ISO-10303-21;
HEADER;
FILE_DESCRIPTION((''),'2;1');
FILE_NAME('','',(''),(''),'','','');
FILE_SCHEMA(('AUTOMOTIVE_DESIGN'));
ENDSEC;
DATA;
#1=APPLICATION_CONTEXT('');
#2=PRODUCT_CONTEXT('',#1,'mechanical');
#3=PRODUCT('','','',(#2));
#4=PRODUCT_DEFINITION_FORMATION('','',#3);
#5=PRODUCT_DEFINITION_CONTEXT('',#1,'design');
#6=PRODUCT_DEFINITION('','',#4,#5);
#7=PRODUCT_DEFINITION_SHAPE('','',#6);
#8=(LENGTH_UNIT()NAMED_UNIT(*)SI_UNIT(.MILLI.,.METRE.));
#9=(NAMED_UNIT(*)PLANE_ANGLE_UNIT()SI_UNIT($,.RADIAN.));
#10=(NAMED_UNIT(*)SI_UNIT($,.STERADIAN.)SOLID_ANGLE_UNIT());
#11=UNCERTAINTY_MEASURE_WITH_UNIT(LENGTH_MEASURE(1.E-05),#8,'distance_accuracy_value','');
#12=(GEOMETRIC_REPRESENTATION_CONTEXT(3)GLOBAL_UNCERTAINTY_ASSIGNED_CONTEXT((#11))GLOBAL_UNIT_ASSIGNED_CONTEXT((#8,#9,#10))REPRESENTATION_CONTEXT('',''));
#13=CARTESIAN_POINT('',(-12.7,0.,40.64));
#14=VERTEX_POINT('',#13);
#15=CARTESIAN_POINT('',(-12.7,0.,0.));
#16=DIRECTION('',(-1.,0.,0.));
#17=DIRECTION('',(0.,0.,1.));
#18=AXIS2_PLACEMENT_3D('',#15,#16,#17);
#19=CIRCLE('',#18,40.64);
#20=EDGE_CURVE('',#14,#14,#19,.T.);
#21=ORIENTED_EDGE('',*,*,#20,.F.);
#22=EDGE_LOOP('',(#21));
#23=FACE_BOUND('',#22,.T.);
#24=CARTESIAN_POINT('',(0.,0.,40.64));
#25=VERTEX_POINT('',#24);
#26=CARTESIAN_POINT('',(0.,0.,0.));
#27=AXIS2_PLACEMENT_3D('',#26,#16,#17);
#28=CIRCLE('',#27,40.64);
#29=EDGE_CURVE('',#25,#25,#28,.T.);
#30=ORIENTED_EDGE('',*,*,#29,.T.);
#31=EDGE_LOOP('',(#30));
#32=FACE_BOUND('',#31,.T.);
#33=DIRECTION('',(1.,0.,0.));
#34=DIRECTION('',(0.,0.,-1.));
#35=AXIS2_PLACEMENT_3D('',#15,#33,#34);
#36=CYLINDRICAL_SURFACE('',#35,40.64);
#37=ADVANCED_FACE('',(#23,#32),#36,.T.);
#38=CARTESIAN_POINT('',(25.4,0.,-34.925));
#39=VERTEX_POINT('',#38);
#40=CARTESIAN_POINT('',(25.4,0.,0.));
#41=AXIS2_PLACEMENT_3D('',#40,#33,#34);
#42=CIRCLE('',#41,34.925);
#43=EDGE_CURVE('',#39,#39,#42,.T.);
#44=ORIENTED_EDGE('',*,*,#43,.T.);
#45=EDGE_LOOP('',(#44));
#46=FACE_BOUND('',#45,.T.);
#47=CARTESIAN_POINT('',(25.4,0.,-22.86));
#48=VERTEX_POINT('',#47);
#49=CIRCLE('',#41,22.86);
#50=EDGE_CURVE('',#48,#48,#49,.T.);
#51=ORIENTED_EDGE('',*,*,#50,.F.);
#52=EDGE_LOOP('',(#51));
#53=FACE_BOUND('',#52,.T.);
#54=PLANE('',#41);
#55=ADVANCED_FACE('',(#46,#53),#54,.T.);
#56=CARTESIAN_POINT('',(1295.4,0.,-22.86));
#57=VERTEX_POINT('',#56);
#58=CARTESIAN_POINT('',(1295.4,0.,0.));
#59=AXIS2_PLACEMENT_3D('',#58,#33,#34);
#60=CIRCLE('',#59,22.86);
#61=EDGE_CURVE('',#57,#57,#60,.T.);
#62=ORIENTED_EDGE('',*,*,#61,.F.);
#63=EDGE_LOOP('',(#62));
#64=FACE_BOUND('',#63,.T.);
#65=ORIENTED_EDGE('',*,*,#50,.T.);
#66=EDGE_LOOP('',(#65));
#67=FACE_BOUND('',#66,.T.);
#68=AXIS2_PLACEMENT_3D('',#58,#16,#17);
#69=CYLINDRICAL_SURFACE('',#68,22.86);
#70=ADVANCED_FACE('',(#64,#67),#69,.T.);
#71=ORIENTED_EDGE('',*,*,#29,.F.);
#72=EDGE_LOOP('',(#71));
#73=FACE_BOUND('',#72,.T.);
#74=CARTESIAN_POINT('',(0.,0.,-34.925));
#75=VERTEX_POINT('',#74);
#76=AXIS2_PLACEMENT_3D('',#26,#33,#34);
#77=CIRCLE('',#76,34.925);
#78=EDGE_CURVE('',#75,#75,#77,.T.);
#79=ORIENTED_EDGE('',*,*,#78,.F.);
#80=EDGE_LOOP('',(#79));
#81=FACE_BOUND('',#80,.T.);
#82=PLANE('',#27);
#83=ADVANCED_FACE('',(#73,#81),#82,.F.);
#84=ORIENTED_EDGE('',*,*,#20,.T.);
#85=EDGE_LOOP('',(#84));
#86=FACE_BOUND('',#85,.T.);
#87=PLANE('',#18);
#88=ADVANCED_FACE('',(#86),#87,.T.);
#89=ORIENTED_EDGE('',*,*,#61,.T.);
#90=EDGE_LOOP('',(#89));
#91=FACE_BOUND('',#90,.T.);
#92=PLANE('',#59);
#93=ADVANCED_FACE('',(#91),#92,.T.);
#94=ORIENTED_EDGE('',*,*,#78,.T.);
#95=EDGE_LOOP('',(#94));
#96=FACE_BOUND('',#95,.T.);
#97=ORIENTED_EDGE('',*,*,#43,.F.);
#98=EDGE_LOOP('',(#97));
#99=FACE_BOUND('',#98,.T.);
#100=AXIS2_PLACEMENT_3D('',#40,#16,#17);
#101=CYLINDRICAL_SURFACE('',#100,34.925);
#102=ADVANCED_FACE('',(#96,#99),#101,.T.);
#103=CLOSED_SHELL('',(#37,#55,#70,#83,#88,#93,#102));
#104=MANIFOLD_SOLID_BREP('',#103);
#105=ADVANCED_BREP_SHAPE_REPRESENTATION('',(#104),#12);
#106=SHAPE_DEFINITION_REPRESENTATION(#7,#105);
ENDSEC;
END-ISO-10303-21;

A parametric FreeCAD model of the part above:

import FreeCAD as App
import Part
import Sketcher
from FreeCAD import Vector
Q = App.Units.Quantity

doc = App.newDocument("Part")
body = doc.addObject("PartDesign::Body", "Body")

# Sketch on YZ plane
sketch1 = body.newObject("Sketcher::SketchObject", "Sketch")
sketch1.AttachmentSupport = (doc.getObject("YZ_Plane"), [""])
sketch1.MapMode = "FlatFace"
sketch1.addGeometry(Part.Circle(Vector(0, 0, 0), Vector(0, 0, 1), 35), False)
sketch1.addConstraint([
    Sketcher.Constraint("Coincident", 0, 3, -1, 1),
    Sketcher.Constraint("Diameter", 0, Q("2.75 in")),
])
pad1 = body.newObject("PartDesign::Pad", "Pad")
pad1.Profile = sketch1
pad1.Length = Q("1 in")

# Sketch on YZ plane
sketch2 = body.newObject("Sketcher::SketchObject", "Sketch001")
sketch2.AttachmentSupport = (doc.getObject("YZ_Plane"), [""])
sketch2.MapMode = "FlatFace"
sketch2.AttachmentOffset = App.Placement(Vector(0, 0, 1 * 25.4), App.Rotation())
sketch2.addGeometry(Part.Circle(Vector(0, 0, 0), Vector(0, 0, 1), 23), False)
sketch2.addConstraint([
    Sketcher.Constraint("Coincident", 0, 3, -1, 1),
    Sketcher.Constraint("Diameter", 0, Q("1.8 in")),
])
pad2 = body.newObject("PartDesign::Pad", "Pad001")
pad2.Profile = sketch2
pad2.Length = Q("50 in")

# Sketch on YZ plane
sketch3 = body.newObject("Sketcher::SketchObject", "Sketch002")
sketch3.AttachmentSupport = (doc.getObject("YZ_Plane"), [""])
sketch3.MapMode = "FlatFace"
sketch3.addGeometry(Part.Circle(Vector(0, 0, 0), Vector(0, 0, 1), 41), False)
sketch3.addConstraint([
    Sketcher.Constraint("Coincident", 0, 3, -1, 1),
    Sketcher.Constraint("Diameter", 0, Q("3.2 in")),
])
pad3 = body.newObject("PartDesign::Pad", "Pad002")
pad3.Profile = sketch3
pad3.Length = Q("0.5 in")
pad3.Reversed = True

doc.recompute()
